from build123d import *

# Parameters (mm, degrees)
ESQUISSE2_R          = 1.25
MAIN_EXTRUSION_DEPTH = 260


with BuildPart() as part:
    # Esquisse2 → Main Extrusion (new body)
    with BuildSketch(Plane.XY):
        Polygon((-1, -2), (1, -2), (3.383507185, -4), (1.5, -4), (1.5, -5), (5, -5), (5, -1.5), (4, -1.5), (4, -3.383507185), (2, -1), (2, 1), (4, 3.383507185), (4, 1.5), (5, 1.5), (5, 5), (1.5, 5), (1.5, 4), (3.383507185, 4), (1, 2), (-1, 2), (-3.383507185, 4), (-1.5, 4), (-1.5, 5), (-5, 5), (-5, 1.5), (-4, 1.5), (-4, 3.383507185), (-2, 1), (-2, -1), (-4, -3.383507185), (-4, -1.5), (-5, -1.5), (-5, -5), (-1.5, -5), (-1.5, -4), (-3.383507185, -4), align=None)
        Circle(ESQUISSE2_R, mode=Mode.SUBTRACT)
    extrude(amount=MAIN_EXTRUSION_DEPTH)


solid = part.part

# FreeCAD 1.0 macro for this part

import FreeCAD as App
import Part
import Sketcher
from FreeCAD import Vector
Q = App.Units.Quantity

doc = App.newDocument("Part")
body = doc.addObject("PartDesign::Body", "Body")

# Sketch on XY plane
sketch1 = doc.addObject("Sketcher::SketchObject", "Sketch")
body.addObject(sketch1)
sketch1.AttachmentSupport = (doc.XY_Plane, [""])
sketch1.MapMode = "FlatFace"
sketch1.addGeometry(Part.LineSegment(Vector(-1, -2, 0), Vector(1, -2, 0)), False)
sketch1.addGeometry(Part.LineSegment(Vector(1, -2, 0), Vector(3.4, -4, 0)), False)
sketch1.addGeometry(Part.LineSegment(Vector(3.4, -4, 0), Vector(1.5, -4, 0)), False)
sketch1.addGeometry(Part.LineSegment(Vector(1.5, -4, 0), Vector(1.5, -5, 0)), False)
sketch1.addGeometry(Part.LineSegment(Vector(1.5, -5, 0), Vector(5, -5, 0)), False)
sketch1.addGeometry(Part.LineSegment(Vector(5, -5, 0), Vector(5, -1.5, 0)), False)
sketch1.addGeometry(Part.LineSegment(Vector(5, -1.5, 0), Vector(4, -1.5, 0)), False)
sketch1.addGeometry(Part.LineSegment(Vector(4, -1.5, 0), Vector(4, -3.4, 0)), False)
sketch1.addGeometry(Part.LineSegment(Vector(4, -3.4, 0), Vector(2, -1, 0)), False)
sketch1.addGeometry(Part.LineSegment(Vector(2, -1, 0), Vector(2, 1, 0)), False)
sketch1.addGeometry(Part.LineSegment(Vector(2, 1, 0), Vector(4, 3.4, 0)), False)
sketch1.addGeometry(Part.LineSegment(Vector(4, 3.4, 0), Vector(4, 1.5, 0)), False)
sketch1.addGeometry(Part.LineSegment(Vector(4, 1.5, 0), Vector(5, 1.5, 0)), False)
sketch1.addGeometry(Part.LineSegment(Vector(5, 1.5, 0), Vector(5, 5, 0)), False)
sketch1.addGeometry(Part.LineSegment(Vector(5, 5, 0), Vector(1.5, 5, 0)), False)
sketch1.addGeometry(Part.LineSegment(Vector(1.5, 5, 0), Vector(1.5, 4, 0)), False)
sketch1.addGeometry(Part.LineSegment(Vector(1.5, 4, 0), Vector(3.4, 4, 0)), False)
sketch1.addGeometry(Part.LineSegment(Vector(3.4, 4, 0), Vector(1, 2, 0)), False)
sketch1.addGeometry(Part.LineSegment(Vector(1, 2, 0), Vector(-1, 2, 0)), False)
sketch1.addGeometry(Part.LineSegment(Vector(-1, 2, 0), Vector(-3.4, 4, 0)), False)
sketch1.addGeometry(Part.LineSegment(Vector(-3.4, 4, 0), Vector(-1.5, 4, 0)), False)
sketch1.addGeometry(Part.LineSegment(Vector(-1.5, 4, 0), Vector(-1.5, 5, 0)), False)
sketch1.addGeometry(Part.LineSegment(Vector(-1.5, 5, 0), Vector(-5, 5, 0)), False)
sketch1.addGeometry(Part.LineSegment(Vector(-5, 5, 0), Vector(-5, 1.5, 0)), False)
sketch1.addGeometry(Part.LineSegment(Vector(-5, 1.5, 0), Vector(-4, 1.5, 0)), False)
sketch1.addGeometry(Part.LineSegment(Vector(-4, 1.5, 0), Vector(-4, 3.4, 0)), False)
sketch1.addGeometry(Part.LineSegment(Vector(-4, 3.4, 0), Vector(-2, 1, 0)), False)
sketch1.addGeometry(Part.LineSegment(Vector(-2, 1, 0), Vector(-2, -1, 0)), False)
sketch1.addGeometry(Part.LineSegment(Vector(-2, -1, 0), Vector(-4, -3.4, 0)), False)
sketch1.addGeometry(Part.LineSegment(Vector(-4, -3.4, 0), Vector(-4, -1.5, 0)), False)
sketch1.addGeometry(Part.LineSegment(Vector(-4, -1.5, 0), Vector(-5, -1.5, 0)), False)
sketch1.addGeometry(Part.LineSegment(Vector(-5, -1.5, 0), Vector(-5, -5, 0)), False)
sketch1.addGeometry(Part.LineSegment(Vector(-5, -5, 0), Vector(-1.5, -5, 0)), False)
sketch1.addGeometry(Part.LineSegment(Vector(-1.5, -5, 0), Vector(-1.5, -4, 0)), False)
sketch1.addGeometry(Part.LineSegment(Vector(-1.5, -4, 0), Vector(-3.4, -4, 0)), False)
sketch1.addGeometry(Part.LineSegment(Vector(-3.4, -4, 0), Vector(-1, -2, 0)), False)
sketch1.addGeometry(Part.Circle(Vector(0, 0, 0), Vector(0, 0, 1), 1.2), False)
sketch1.addConstraint(Sketcher.Constraint("Coincident", 0, 2, 1, 1))
sketch1.addConstraint(Sketcher.Constraint("Coincident", 1, 2, 2, 1))
sketch1.addConstraint(Sketcher.Constraint("Coincident", 2, 2, 3, 1))
sketch1.addConstraint(Sketcher.Constraint("Coincident", 3, 2, 4, 1))
sketch1.addConstraint(Sketcher.Constraint("Coincident", 4, 2, 5, 1))
sketch1.addConstraint(Sketcher.Constraint("Coincident", 5, 2, 6, 1))
sketch1.addConstraint(Sketcher.Constraint("Coincident", 6, 2, 7, 1))
sketch1.addConstraint(Sketcher.Constraint("Coincident", 7, 2, 8, 1))
sketch1.addConstraint(Sketcher.Constraint("Coincident", 8, 2, 9, 1))
sketch1.addConstraint(Sketcher.Constraint("Coincident", 9, 2, 10, 1))
sketch1.addConstraint(Sketcher.Constraint("Coincident", 10, 2, 11, 1))
sketch1.addConstraint(Sketcher.Constraint("Coincident", 11, 2, 12, 1))
sketch1.addConstraint(Sketcher.Constraint("Coincident", 12, 2, 13, 1))
sketch1.addConstraint(Sketcher.Constraint("Coincident", 13, 2, 14, 1))
sketch1.addConstraint(Sketcher.Constraint("Coincident", 14, 2, 15, 1))
sketch1.addConstraint(Sketcher.Constraint("Coincident", 15, 2, 16, 1))
sketch1.addConstraint(Sketcher.Constraint("Coincident", 16, 2, 17, 1))
sketch1.addConstraint(Sketcher.Constraint("Coincident", 17, 2, 18, 1))
sketch1.addConstraint(Sketcher.Constraint("Coincident", 18, 2, 19, 1))
sketch1.addConstraint(Sketcher.Constraint("Coincident", 19, 2, 20, 1))
sketch1.addConstraint(Sketcher.Constraint("Coincident", 20, 2, 21, 1))
sketch1.addConstraint(Sketcher.Constraint("Coincident", 21, 2, 22, 1))
sketch1.addConstraint(Sketcher.Constraint("Coincident", 22, 2, 23, 1))
sketch1.addConstraint(Sketcher.Constraint("Coincident", 23, 2, 24, 1))
sketch1.addConstraint(Sketcher.Constraint("Coincident", 24, 2, 25, 1))
sketch1.addConstraint(Sketcher.Constraint("Coincident", 25, 2, 26, 1))
sketch1.addConstraint(Sketcher.Constraint("Coincident", 26, 2, 27, 1))
sketch1.addConstraint(Sketcher.Constraint("Coincident", 27, 2, 28, 1))
sketch1.addConstraint(Sketcher.Constraint("Coincident", 28, 2, 29, 1))
sketch1.addConstraint(Sketcher.Constraint("Coincident", 29, 2, 30, 1))
sketch1.addConstraint(Sketcher.Constraint("Coincident", 30, 2, 31, 1))
sketch1.addConstraint(Sketcher.Constraint("Coincident", 31, 2, 32, 1))
sketch1.addConstraint(Sketcher.Constraint("Coincident", 32, 2, 33, 1))
sketch1.addConstraint(Sketcher.Constraint("Coincident", 33, 2, 34, 1))
sketch1.addConstraint(Sketcher.Constraint("Coincident", 34, 2, 35, 1))
sketch1.addConstraint(Sketcher.Constraint("Coincident", 35, 2, 0, 1))
sketch1.addConstraint(Sketcher.Constraint("Horizontal", 0))
sketch1.addConstraint(Sketcher.Constraint("Horizontal", 2))
sketch1.addConstraint(Sketcher.Constraint("Vertical", 3))
sketch1.addConstraint(Sketcher.Constraint("Horizontal", 4))
sketch1.addConstraint(Sketcher.Constraint("Vertical", 5))
sketch1.addConstraint(Sketcher.Constraint("Horizontal", 6))
sketch1.addConstraint(Sketcher.Constraint("Vertical", 7))
sketch1.addConstraint(Sketcher.Constraint("Vertical", 9))
sketch1.addConstraint(Sketcher.Constraint("Vertical", 11))
sketch1.addConstraint(Sketcher.Constraint("Horizontal", 12))
sketch1.addConstraint(Sketcher.Constraint("Vertical", 13))
sketch1.addConstraint(Sketcher.Constraint("Horizontal", 14))
sketch1.addConstraint(Sketcher.Constraint("Vertical", 15))
sketch1.addConstraint(Sketcher.Constraint("Horizontal", 16))
sketch1.addConstraint(Sketcher.Constraint("Horizontal", 18))
sketch1.addConstraint(Sketcher.Constraint("Horizontal", 20))
sketch1.addConstraint(Sketcher.Constraint("Vertical", 21))
sketch1.addConstraint(Sketcher.Constraint("Horizontal", 22))
sketch1.addConstraint(Sketcher.Constraint("Vertical", 23))
sketch1.addConstraint(Sketcher.Constraint("Horizontal", 24))
sketch1.addConstraint(Sketcher.Constraint("Vertical", 25))
sketch1.addConstraint(Sketcher.Constraint("Vertical", 27))
sketch1.addConstraint(Sketcher.Constraint("Vertical", 29))
sketch1.addConstraint(Sketcher.Constraint("Horizontal", 30))
sketch1.addConstraint(Sketcher.Constraint("Vertical", 31))
sketch1.addConstraint(Sketcher.Constraint("Horizontal", 32))
sketch1.addConstraint(Sketcher.Constraint("Vertical", 33))
sketch1.addConstraint(Sketcher.Constraint("Horizontal", 34))
sketch1.addConstraint(Sketcher.Constraint("Coincident", 36, 3, -1, 1))
sketch1.addConstraint(Sketcher.Constraint("Symmetric", 0, 2, 18, 2, -1, 1))
sketch1.addConstraint(Sketcher.Constraint("Symmetric", 1, 2, 19, 2, -1, 1))
sketch1.addConstraint(Sketcher.Constraint("Symmetric", 3, 2, 21, 2, -1, 1))
sketch1.addConstraint(Sketcher.Constraint("Symmetric", 5, 2, 23, 2, -1, 1))
sketch1.addConstraint(Sketcher.Constraint("Symmetric", 7, 2, 25, 2, -1, 1))
sketch1.addConstraint(Sketcher.Constraint("Symmetric", 8, 2, 26, 2, -1, 1))
sketch1.addConstraint(Sketcher.Constraint("Symmetric", 10, 2, 28, 2, -1, 1))
sketch1.addConstraint(Sketcher.Constraint("Symmetric", 12, 2, 30, 2, -1, 1))
sketch1.addConstraint(Sketcher.Constraint("Symmetric", 14, 2, 32, 2, -1, 1))
sketch1.addConstraint(Sketcher.Constraint("Symmetric", 16, 2, 34, 2, -1, 1))
sketch1.addConstraint(Sketcher.Constraint("Symmetric", 16, 2, 19, 2, -2))
sketch1.addConstraint(Sketcher.Constraint("Symmetric", 14, 2, 21, 2, -2))
sketch1.addConstraint(Sketcher.Constraint("Symmetric", 12, 2, 23, 2, -2))
sketch1.addConstraint(Sketcher.Constraint("Symmetric", 10, 2, 25, 2, -2))
sketch1.addConstraint(Sketcher.Constraint("Perpendicular", 1, 10))
sketch1.addConstraint(Sketcher.Constraint("Perpendicular", 8, 17))
sketch1.addConstraint(Sketcher.Constraint("Perpendicular", 19, 28))
sketch1.addConstraint(Sketcher.Constraint("Perpendicular", 26, 35))
sketch1.addConstraint(Sketcher.Constraint("Horizontal", 9, 2, 26, 2))
sketch1.addConstraint(Sketcher.Constraint("Equal", 30, 3))
sketch1.addConstraint(Sketcher.Constraint("Equal", 32, 5))
sketch1.addConstraint(Sketcher.Constraint("Equal", 34, 7))
sketch1.addConstraint(Sketcher.Constraint("Equal", 18, 9))
sketch1.addConstraint(Sketcher.Constraint("Equal", 1, 8))
sketch1.addConstraint(Sketcher.Constraint("Diameter", 36, Q("2.5 mm")))
sketch1.addConstraint(Sketcher.Constraint("DistanceX", 0, 1, 0, 2, Q("2 mm")))
sketch1.addConstraint(Sketcher.Constraint("DistanceX", 6, 2, 6, 1, Q("1 mm")))
sketch1.addConstraint(Sketcher.Constraint("Angle", 1, Q("-40 deg")))
sketch1.addConstraint(Sketcher.Constraint("DistanceX", 4, 1, 4, 2, Q("3.5 mm")))
sketch1.addConstraint(Sketcher.Constraint("DistanceY", 0, 2, -1, 1, Q("2 mm")))
sketch1.addConstraint(Sketcher.Constraint("DistanceY", 1, 2, -1, 1, Q("4 mm")))
pad1 = doc.addObject("PartDesign::Pad", "Pad")
body.addObject(pad1)
pad1.Profile = sketch1
pad1.Length = 260

doc.recompute()
